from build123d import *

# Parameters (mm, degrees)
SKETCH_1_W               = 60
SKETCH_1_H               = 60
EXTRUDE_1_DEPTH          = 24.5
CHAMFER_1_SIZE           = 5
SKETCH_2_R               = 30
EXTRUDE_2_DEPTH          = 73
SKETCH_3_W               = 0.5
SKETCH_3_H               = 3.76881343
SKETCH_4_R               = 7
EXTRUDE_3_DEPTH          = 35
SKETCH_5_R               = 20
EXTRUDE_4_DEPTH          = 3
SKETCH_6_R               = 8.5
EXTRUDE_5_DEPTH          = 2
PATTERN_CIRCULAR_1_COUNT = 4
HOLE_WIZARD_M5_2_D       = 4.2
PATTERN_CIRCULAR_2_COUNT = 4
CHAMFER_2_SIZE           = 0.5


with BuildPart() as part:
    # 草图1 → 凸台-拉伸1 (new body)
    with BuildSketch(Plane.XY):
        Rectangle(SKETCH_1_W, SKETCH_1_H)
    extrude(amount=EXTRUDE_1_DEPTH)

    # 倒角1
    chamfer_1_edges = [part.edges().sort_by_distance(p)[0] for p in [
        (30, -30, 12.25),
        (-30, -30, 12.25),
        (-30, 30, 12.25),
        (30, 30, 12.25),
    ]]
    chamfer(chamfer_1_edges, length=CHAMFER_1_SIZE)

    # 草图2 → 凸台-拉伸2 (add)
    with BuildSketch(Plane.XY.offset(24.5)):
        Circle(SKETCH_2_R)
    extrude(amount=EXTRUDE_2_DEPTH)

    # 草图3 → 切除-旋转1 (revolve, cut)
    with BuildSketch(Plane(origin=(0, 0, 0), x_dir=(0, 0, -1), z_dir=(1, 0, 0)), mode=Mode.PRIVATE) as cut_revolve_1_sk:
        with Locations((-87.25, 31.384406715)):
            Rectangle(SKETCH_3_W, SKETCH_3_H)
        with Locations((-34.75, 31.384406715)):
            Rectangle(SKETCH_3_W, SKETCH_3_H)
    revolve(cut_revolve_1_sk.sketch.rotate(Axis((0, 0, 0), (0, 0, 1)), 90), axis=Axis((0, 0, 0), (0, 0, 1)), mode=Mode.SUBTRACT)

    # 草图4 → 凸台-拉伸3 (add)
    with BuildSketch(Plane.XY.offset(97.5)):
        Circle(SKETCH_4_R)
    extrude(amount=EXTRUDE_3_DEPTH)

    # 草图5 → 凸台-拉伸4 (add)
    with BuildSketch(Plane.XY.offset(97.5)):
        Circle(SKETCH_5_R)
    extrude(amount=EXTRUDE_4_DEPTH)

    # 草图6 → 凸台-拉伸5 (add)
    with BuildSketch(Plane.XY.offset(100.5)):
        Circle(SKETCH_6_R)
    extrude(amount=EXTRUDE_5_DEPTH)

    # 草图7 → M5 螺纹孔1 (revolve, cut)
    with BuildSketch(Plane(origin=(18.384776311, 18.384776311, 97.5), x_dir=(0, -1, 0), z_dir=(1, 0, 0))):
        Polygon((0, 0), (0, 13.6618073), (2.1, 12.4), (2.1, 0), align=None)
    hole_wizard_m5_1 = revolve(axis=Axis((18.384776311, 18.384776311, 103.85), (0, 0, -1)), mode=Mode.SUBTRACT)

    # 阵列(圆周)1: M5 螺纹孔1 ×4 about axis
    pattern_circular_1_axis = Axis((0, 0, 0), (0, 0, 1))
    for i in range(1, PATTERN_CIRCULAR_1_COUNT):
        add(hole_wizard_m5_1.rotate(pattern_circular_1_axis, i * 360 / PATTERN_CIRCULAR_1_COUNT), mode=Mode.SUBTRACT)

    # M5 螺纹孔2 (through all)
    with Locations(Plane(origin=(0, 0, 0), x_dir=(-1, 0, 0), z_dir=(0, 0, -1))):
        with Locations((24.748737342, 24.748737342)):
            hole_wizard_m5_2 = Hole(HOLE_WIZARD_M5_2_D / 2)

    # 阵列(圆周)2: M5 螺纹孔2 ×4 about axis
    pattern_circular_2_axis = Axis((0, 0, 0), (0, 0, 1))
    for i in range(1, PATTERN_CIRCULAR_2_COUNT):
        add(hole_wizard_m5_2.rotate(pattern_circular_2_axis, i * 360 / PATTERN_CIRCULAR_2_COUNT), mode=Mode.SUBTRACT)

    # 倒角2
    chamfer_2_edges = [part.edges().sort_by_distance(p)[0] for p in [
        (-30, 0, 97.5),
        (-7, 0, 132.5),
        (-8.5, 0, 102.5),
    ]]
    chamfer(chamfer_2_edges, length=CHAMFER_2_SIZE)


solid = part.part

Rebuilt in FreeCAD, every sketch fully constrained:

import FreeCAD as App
import Part
import Sketcher

V = App.Vector
Q = App.Units.Quantity


def edges_at(feature, points):
    """Names of the edges that pass closest to the given points."""
    edges = feature.Shape.Edges
    near = lambda p: min(range(len(edges)), key=lambda i: edges[i].distToShape(Part.Vertex(*p))[0])
    return sorted({f"Edge{near(p) + 1}" for p in points})

doc = App.newDocument("Part")
body = doc.addObject("PartDesign::Body", "Body")

# Sketch on XY plane
sketch1 = doc.addObject("Sketcher::SketchObject", "Sketch")
body.addObject(sketch1)
sketch1.AttachmentSupport = (doc.XY_Plane, [""])
sketch1.MapMode = "FlatFace"
sketch1.addGeometry(Part.LineSegment(V(-30, 30, 0), V(-30, -30, 0)), False)
sketch1.addGeometry(Part.LineSegment(V(-30, -30, 0), V(30, -30, 0)), False)
sketch1.addGeometry(Part.LineSegment(V(30, -30, 0), V(30, 30, 0)), False)
sketch1.addGeometry(Part.LineSegment(V(30, 30, 0), V(-30, 30, 0)), False)
sketch1.addConstraint(Sketcher.Constraint("Coincident", 0, 2, 1, 1))
sketch1.addConstraint(Sketcher.Constraint("Coincident", 1, 2, 2, 1))
sketch1.addConstraint(Sketcher.Constraint("Coincident", 2, 2, 3, 1))
sketch1.addConstraint(Sketcher.Constraint("Coincident", 3, 2, 0, 1))
sketch1.addConstraint(Sketcher.Constraint("Vertical", 0))
sketch1.addConstraint(Sketcher.Constraint("Horizontal", 1))
sketch1.addConstraint(Sketcher.Constraint("Vertical", 2))
sketch1.addConstraint(Sketcher.Constraint("Horizontal", 3))
sketch1.addConstraint(Sketcher.Constraint("Symmetric", 0, 2, 2, 2, -1, 1))
sketch1.addConstraint(Sketcher.Constraint("Equal", 3, 0))
sketch1.addConstraint(Sketcher.Constraint("DistanceX", 1, 1, 1, 2, 60.0))
pad1 = doc.addObject("PartDesign::Pad", "Pad")
body.addObject(pad1)
pad1.Profile = sketch1
pad1.Length = 24.5
doc.recompute()

chamfer = doc.addObject("PartDesign::Chamfer", "Chamfer")
body.addObject(chamfer)
chamfer.Base = (pad1, edges_at(pad1, [
    (30, -30, 12.25),
    (-30, -30, 12.25),
    (-30, 30, 12.25),
    (30, 30, 12.25),
]))
chamfer.Size = 5

# Sketch on XY plane
sketch2 = doc.addObject("Sketcher::SketchObject", "Sketch001")
body.addObject(sketch2)
sketch2.AttachmentSupport = (doc.XY_Plane, [""])
sketch2.MapMode = "FlatFace"
sketch2.AttachmentOffset = App.Placement(V(0, 0, 24.5), App.Rotation())
sketch2.addGeometry(Part.Circle(V(0, 0, 0), V(0, 0, 1), 30), False)
sketch2.addConstraint(Sketcher.Constraint("Coincident", 0, 3, -1, 1))
sketch2.addConstraint(Sketcher.Constraint("Diameter", 0, 60.0))
pad2 = doc.addObject("PartDesign::Pad", "Pad001")
body.addObject(pad2)
pad2.Profile = sketch2
pad2.Length = 73

# Sketch on YZ plane
sketch3 = doc.addObject("Sketcher::SketchObject", "Sketch002")
body.addObject(sketch3)
sketch3.AttachmentSupport = (doc.YZ_Plane, [""])
sketch3.MapMode = "FlatFace"
sketch3.addGeometry(Part.LineSegment(V(33.3, 87.5, 0), V(29.5, 87.5, 0)), False)
sketch3.addGeometry(Part.LineSegment(V(29.5, 87.5, 0), V(29.5, 87, 0)), False)
sketch3.addGeometry(Part.LineSegment(V(29.5, 87, 0), V(33.3, 87, 0)), False)
sketch3.addGeometry(Part.LineSegment(V(33.3, 87, 0), V(33.3, 87.5, 0)), False)
sketch3.addGeometry(Part.LineSegment(V(33.3, 35, 0), V(29.5, 35, 0)), False)
sketch3.addGeometry(Part.LineSegment(V(29.5, 35, 0), V(29.5, 34.5, 0)), False)
sketch3.addGeometry(Part.LineSegment(V(29.5, 34.5, 0), V(33.3, 34.5, 0)), False)
sketch3.addGeometry(Part.LineSegment(V(33.3, 34.5, 0), V(33.3, 35, 0)), False)
sketch3.addConstraint(Sketcher.Constraint("Coincident", 0, 2, 1, 1))
sketch3.addConstraint(Sketcher.Constraint("Coincident", 1, 2, 2, 1))
sketch3.addConstraint(Sketcher.Constraint("Coincident", 2, 2, 3, 1))
sketch3.addConstraint(Sketcher.Constraint("Coincident", 3, 2, 0, 1))
sketch3.addConstraint(Sketcher.Constraint("Coincident", 4, 2, 5, 1))
sketch3.addConstraint(Sketcher.Constraint("Coincident", 5, 2, 6, 1))
sketch3.addConstraint(Sketcher.Constraint("Coincident", 6, 2, 7, 1))
sketch3.addConstraint(Sketcher.Constraint("Coincident", 7, 2, 4, 1))
sketch3.addConstraint(Sketcher.Constraint("Horizontal", 0))
sketch3.addConstraint(Sketcher.Constraint("Vertical", 1))
sketch3.addConstraint(Sketcher.Constraint("Horizontal", 2))
sketch3.addConstraint(Sketcher.Constraint("Vertical", 3))
sketch3.addConstraint(Sketcher.Constraint("Horizontal", 4))
sketch3.addConstraint(Sketcher.Constraint("Vertical", 5))
sketch3.addConstraint(Sketcher.Constraint("Horizontal", 6))
sketch3.addConstraint(Sketcher.Constraint("Vertical", 7))
sketch3.addConstraint(Sketcher.Constraint("Vertical", 1, 2, 4, 2))
sketch3.addConstraint(Sketcher.Constraint("Vertical", 3, 2, 6, 2))
sketch3.addConstraint(Sketcher.Constraint("Equal", 3, 5))
sketch3.addConstraint(Sketcher.Constraint("DistanceY", 1, 2, 1, 1, 0.5))
sketch3.addConstraint(Sketcher.Constraint("DistanceY", -1, 1, 1, 2, 87.0))
sketch3.addConstraint(Sketcher.Constraint("DistanceY", -1, 1, 4, 2, 35.0))
sketch3.addConstraint(Sketcher.Constraint("DistanceX", -1, 1, 0, 2, 29.5))
sketch3.addConstraint(Sketcher.Constraint("DistanceX", 0, 2, 0, 1, 3.768813))
groove = doc.addObject("PartDesign::Groove", "Groove")
body.addObject(groove)
groove.Profile = sketch3
groove.ReferenceAxis = (sketch3, ["V_Axis"])
groove.Angle = 360

# Sketch on XY plane
sketch4 = doc.addObject("Sketcher::SketchObject", "Sketch003")
body.addObject(sketch4)
sketch4.AttachmentSupport = (doc.XY_Plane, [""])
sketch4.MapMode = "FlatFace"
sketch4.AttachmentOffset = App.Placement(V(0, 0, 97.5), App.Rotation())
sketch4.addGeometry(Part.Circle(V(0, 0, 0), V(0, 0, 1), 7), False)
sketch4.addConstraint(Sketcher.Constraint("Coincident", 0, 3, -1, 1))
sketch4.addConstraint(Sketcher.Constraint("Diameter", 0, 14.0))
pad3 = doc.addObject("PartDesign::Pad", "Pad002")
body.addObject(pad3)
pad3.Profile = sketch4
pad3.Length = 35

# Sketch on XY plane
sketch5 = doc.addObject("Sketcher::SketchObject", "Sketch004")
body.addObject(sketch5)
sketch5.AttachmentSupport = (doc.XY_Plane, [""])
sketch5.MapMode = "FlatFace"
sketch5.AttachmentOffset = App.Placement(V(0, 0, 97.5), App.Rotation())
sketch5.addGeometry(Part.Circle(V(0, 0, 0), V(0, 0, 1), 20), False)
sketch5.addConstraint(Sketcher.Constraint("Coincident", 0, 3, -1, 1))
sketch5.addConstraint(Sketcher.Constraint("Diameter", 0, 40.0))
pad4 = doc.addObject("PartDesign::Pad", "Pad003")
body.addObject(pad4)
pad4.Profile = sketch5
pad4.Length = 3

# Sketch on XY plane
sketch6 = doc.addObject("Sketcher::SketchObject", "Sketch005")
body.addObject(sketch6)
sketch6.AttachmentSupport = (doc.XY_Plane, [""])
sketch6.MapMode = "FlatFace"
sketch6.AttachmentOffset = App.Placement(V(0, 0, 100.5), App.Rotation())
sketch6.addGeometry(Part.Circle(V(0, 0, 0), V(0, 0, 1), 8), False)
sketch6.addConstraint(Sketcher.Constraint("Coincident", 0, 3, -1, 1))
sketch6.addConstraint(Sketcher.Constraint("Diameter", 0, 17.0))
pad5 = doc.addObject("PartDesign::Pad", "Pad004")
body.addObject(pad5)
pad5.Profile = sketch6
pad5.Length = 2

# Sketch on YZ plane
sketch7 = doc.addObject("Sketcher::SketchObject", "Sketch006")
body.addObject(sketch7)
sketch7.AttachmentSupport = (doc.YZ_Plane, [""])
sketch7.MapMode = "FlatFace"
sketch7.AttachmentOffset = App.Placement(V(0, 0, 18.384776), App.Rotation())
sketch7.addGeometry(Part.LineSegment(V(18.4, 83.8, 0), V(18.4, 97.5, 0)), False)
sketch7.addGeometry(Part.LineSegment(V(18.4, 97.5, 0), V(16.3, 97.5, 0)), False)
sketch7.addGeometry(Part.LineSegment(V(16.3, 97.5, 0), V(16.3, 85.1, 0)), False)
sketch7.addGeometry(Part.LineSegment(V(16.3, 85.1, 0), V(18.4, 83.8, 0)), False)
sketch7.addGeometry(Part.LineSegment(V(18.4, 97.5, 0), V(18.4, 83.8, 0)), True)  # axis
sketch7.addConstraint(Sketcher.Constraint("Coincident", 0, 2, 1, 1))
sketch7.addConstraint(Sketcher.Constraint("Coincident", 1, 2, 2, 1))
sketch7.addConstraint(Sketcher.Constraint("Coincident", 2, 2, 3, 1))
sketch7.addConstraint(Sketcher.Constraint("Coincident", 3, 2, 0, 1))
sketch7.addConstraint(Sketcher.Constraint("Vertical", 0))
sketch7.addConstraint(Sketcher.Constraint("Horizontal", 1))
sketch7.addConstraint(Sketcher.Constraint("Vertical", 2))
sketch7.addConstraint(Sketcher.Constraint("Vertical", 4))
sketch7.addConstraint(Sketcher.Constraint("Coincident", 4, 1, 0, 2))
sketch7.addConstraint(Sketcher.Constraint("Equal", 0, 4))
sketch7.addConstraint(Sketcher.Constraint("Angle", 3, Q("-31 deg")))
sketch7.addConstraint(Sketcher.Constraint("DistanceX", 1, 2, 1, 1, 2.1))
sketch7.addConstraint(Sketcher.Constraint("DistanceY", 2, 2, 2, 1, 12.4))
sketch7.addConstraint(Sketcher.Constraint("DistanceY", -1, 1, 0, 2, 97.5))
sketch7.addConstraint(Sketcher.Constraint("DistanceX", -1, 1, 0, 2, 18.384776))
groove2 = doc.addObject("PartDesign::Groove", "Groove001")
body.addObject(groove2)
groove2.Profile = sketch7
groove2.ReferenceAxis = (sketch7, ["Axis0"])
groove2.Angle = 360
doc.recompute()

polarpattern = doc.addObject("PartDesign::PolarPattern", "PolarPattern")
body.addObject(polarpattern)
polarpattern.Originals = [groove2]
polarpattern.Axis = (doc.Z_Axis, [""])
polarpattern.Angle = 360
polarpattern.Occurrences = 4
body.Tip = polarpattern

# Sketch on XY plane
sketch8 = doc.addObject("Sketcher::SketchObject", "Sketch007")
body.addObject(sketch8)
sketch8.AttachmentSupport = (doc.XY_Plane, [""])
sketch8.MapMode = "FlatFace"
sketch8.addGeometry(Part.Circle(V(-24.7, 24.7, 0), V(0, 0, 1), 2.1), False)
sketch8.addConstraint(Sketcher.Constraint("Diameter", 0, 4.2))
sketch8.addConstraint(Sketcher.Constraint("DistanceX", 0, 3, -1, 1, 24.748737))
sketch8.addConstraint(Sketcher.Constraint("DistanceY", -1, 1, 0, 3, 24.748737))
doc.recompute()
hole = doc.addObject("PartDesign::Hole", "Hole")
body.addObject(hole)
hole.Profile = sketch8
hole.ThreadType = "None"
hole.Diameter = 4.2
hole.DepthType = "ThroughAll"
hole.Reversed = True
doc.recompute()

polarpattern2 = doc.addObject("PartDesign::PolarPattern", "PolarPattern001")
body.addObject(polarpattern2)
polarpattern2.Originals = [hole]
polarpattern2.Axis = (doc.Z_Axis, [""])
polarpattern2.Angle = 360
polarpattern2.Occurrences = 4
body.Tip = polarpattern2
doc.recompute()

chamfer2 = doc.addObject("PartDesign::Chamfer", "Chamfer001")
body.addObject(chamfer2)
chamfer2.Base = (polarpattern2, edges_at(polarpattern2, [(-30, 0, 97.5), (-7, 0, 132.5), (-8.5, 0, 102.5)]))
chamfer2.Size = 0.5

doc.recompute()
